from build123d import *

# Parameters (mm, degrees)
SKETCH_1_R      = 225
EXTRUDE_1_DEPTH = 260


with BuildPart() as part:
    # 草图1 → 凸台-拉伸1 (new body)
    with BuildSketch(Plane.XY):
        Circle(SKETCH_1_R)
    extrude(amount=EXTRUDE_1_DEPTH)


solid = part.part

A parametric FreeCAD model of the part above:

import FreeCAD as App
import Part
import Sketcher

V = App.Vector

doc = App.newDocument("Part")
body = doc.addObject("PartDesign::Body", "Body")

# Sketch on XY plane
sketch1 = body.newObject("Sketcher::SketchObject", "Sketch")
sketch1.AttachmentSupport = (doc.getObject("XY_Plane"), [""])
sketch1.MapMode = "FlatFace"
sketch1.addGeometry(Part.Circle(V(0, 0, 0), V(0, 0, 1), 225), False)
sketch1.addConstraint([
    Sketcher.Constraint("Coincident", 0, 3, -1, 1),
    Sketcher.Constraint("Diameter", 0, 450.0),
])
pad1 = body.newObject("PartDesign::Pad", "Pad")
pad1.Profile = sketch1
pad1.Length = 260

doc.recompute()
